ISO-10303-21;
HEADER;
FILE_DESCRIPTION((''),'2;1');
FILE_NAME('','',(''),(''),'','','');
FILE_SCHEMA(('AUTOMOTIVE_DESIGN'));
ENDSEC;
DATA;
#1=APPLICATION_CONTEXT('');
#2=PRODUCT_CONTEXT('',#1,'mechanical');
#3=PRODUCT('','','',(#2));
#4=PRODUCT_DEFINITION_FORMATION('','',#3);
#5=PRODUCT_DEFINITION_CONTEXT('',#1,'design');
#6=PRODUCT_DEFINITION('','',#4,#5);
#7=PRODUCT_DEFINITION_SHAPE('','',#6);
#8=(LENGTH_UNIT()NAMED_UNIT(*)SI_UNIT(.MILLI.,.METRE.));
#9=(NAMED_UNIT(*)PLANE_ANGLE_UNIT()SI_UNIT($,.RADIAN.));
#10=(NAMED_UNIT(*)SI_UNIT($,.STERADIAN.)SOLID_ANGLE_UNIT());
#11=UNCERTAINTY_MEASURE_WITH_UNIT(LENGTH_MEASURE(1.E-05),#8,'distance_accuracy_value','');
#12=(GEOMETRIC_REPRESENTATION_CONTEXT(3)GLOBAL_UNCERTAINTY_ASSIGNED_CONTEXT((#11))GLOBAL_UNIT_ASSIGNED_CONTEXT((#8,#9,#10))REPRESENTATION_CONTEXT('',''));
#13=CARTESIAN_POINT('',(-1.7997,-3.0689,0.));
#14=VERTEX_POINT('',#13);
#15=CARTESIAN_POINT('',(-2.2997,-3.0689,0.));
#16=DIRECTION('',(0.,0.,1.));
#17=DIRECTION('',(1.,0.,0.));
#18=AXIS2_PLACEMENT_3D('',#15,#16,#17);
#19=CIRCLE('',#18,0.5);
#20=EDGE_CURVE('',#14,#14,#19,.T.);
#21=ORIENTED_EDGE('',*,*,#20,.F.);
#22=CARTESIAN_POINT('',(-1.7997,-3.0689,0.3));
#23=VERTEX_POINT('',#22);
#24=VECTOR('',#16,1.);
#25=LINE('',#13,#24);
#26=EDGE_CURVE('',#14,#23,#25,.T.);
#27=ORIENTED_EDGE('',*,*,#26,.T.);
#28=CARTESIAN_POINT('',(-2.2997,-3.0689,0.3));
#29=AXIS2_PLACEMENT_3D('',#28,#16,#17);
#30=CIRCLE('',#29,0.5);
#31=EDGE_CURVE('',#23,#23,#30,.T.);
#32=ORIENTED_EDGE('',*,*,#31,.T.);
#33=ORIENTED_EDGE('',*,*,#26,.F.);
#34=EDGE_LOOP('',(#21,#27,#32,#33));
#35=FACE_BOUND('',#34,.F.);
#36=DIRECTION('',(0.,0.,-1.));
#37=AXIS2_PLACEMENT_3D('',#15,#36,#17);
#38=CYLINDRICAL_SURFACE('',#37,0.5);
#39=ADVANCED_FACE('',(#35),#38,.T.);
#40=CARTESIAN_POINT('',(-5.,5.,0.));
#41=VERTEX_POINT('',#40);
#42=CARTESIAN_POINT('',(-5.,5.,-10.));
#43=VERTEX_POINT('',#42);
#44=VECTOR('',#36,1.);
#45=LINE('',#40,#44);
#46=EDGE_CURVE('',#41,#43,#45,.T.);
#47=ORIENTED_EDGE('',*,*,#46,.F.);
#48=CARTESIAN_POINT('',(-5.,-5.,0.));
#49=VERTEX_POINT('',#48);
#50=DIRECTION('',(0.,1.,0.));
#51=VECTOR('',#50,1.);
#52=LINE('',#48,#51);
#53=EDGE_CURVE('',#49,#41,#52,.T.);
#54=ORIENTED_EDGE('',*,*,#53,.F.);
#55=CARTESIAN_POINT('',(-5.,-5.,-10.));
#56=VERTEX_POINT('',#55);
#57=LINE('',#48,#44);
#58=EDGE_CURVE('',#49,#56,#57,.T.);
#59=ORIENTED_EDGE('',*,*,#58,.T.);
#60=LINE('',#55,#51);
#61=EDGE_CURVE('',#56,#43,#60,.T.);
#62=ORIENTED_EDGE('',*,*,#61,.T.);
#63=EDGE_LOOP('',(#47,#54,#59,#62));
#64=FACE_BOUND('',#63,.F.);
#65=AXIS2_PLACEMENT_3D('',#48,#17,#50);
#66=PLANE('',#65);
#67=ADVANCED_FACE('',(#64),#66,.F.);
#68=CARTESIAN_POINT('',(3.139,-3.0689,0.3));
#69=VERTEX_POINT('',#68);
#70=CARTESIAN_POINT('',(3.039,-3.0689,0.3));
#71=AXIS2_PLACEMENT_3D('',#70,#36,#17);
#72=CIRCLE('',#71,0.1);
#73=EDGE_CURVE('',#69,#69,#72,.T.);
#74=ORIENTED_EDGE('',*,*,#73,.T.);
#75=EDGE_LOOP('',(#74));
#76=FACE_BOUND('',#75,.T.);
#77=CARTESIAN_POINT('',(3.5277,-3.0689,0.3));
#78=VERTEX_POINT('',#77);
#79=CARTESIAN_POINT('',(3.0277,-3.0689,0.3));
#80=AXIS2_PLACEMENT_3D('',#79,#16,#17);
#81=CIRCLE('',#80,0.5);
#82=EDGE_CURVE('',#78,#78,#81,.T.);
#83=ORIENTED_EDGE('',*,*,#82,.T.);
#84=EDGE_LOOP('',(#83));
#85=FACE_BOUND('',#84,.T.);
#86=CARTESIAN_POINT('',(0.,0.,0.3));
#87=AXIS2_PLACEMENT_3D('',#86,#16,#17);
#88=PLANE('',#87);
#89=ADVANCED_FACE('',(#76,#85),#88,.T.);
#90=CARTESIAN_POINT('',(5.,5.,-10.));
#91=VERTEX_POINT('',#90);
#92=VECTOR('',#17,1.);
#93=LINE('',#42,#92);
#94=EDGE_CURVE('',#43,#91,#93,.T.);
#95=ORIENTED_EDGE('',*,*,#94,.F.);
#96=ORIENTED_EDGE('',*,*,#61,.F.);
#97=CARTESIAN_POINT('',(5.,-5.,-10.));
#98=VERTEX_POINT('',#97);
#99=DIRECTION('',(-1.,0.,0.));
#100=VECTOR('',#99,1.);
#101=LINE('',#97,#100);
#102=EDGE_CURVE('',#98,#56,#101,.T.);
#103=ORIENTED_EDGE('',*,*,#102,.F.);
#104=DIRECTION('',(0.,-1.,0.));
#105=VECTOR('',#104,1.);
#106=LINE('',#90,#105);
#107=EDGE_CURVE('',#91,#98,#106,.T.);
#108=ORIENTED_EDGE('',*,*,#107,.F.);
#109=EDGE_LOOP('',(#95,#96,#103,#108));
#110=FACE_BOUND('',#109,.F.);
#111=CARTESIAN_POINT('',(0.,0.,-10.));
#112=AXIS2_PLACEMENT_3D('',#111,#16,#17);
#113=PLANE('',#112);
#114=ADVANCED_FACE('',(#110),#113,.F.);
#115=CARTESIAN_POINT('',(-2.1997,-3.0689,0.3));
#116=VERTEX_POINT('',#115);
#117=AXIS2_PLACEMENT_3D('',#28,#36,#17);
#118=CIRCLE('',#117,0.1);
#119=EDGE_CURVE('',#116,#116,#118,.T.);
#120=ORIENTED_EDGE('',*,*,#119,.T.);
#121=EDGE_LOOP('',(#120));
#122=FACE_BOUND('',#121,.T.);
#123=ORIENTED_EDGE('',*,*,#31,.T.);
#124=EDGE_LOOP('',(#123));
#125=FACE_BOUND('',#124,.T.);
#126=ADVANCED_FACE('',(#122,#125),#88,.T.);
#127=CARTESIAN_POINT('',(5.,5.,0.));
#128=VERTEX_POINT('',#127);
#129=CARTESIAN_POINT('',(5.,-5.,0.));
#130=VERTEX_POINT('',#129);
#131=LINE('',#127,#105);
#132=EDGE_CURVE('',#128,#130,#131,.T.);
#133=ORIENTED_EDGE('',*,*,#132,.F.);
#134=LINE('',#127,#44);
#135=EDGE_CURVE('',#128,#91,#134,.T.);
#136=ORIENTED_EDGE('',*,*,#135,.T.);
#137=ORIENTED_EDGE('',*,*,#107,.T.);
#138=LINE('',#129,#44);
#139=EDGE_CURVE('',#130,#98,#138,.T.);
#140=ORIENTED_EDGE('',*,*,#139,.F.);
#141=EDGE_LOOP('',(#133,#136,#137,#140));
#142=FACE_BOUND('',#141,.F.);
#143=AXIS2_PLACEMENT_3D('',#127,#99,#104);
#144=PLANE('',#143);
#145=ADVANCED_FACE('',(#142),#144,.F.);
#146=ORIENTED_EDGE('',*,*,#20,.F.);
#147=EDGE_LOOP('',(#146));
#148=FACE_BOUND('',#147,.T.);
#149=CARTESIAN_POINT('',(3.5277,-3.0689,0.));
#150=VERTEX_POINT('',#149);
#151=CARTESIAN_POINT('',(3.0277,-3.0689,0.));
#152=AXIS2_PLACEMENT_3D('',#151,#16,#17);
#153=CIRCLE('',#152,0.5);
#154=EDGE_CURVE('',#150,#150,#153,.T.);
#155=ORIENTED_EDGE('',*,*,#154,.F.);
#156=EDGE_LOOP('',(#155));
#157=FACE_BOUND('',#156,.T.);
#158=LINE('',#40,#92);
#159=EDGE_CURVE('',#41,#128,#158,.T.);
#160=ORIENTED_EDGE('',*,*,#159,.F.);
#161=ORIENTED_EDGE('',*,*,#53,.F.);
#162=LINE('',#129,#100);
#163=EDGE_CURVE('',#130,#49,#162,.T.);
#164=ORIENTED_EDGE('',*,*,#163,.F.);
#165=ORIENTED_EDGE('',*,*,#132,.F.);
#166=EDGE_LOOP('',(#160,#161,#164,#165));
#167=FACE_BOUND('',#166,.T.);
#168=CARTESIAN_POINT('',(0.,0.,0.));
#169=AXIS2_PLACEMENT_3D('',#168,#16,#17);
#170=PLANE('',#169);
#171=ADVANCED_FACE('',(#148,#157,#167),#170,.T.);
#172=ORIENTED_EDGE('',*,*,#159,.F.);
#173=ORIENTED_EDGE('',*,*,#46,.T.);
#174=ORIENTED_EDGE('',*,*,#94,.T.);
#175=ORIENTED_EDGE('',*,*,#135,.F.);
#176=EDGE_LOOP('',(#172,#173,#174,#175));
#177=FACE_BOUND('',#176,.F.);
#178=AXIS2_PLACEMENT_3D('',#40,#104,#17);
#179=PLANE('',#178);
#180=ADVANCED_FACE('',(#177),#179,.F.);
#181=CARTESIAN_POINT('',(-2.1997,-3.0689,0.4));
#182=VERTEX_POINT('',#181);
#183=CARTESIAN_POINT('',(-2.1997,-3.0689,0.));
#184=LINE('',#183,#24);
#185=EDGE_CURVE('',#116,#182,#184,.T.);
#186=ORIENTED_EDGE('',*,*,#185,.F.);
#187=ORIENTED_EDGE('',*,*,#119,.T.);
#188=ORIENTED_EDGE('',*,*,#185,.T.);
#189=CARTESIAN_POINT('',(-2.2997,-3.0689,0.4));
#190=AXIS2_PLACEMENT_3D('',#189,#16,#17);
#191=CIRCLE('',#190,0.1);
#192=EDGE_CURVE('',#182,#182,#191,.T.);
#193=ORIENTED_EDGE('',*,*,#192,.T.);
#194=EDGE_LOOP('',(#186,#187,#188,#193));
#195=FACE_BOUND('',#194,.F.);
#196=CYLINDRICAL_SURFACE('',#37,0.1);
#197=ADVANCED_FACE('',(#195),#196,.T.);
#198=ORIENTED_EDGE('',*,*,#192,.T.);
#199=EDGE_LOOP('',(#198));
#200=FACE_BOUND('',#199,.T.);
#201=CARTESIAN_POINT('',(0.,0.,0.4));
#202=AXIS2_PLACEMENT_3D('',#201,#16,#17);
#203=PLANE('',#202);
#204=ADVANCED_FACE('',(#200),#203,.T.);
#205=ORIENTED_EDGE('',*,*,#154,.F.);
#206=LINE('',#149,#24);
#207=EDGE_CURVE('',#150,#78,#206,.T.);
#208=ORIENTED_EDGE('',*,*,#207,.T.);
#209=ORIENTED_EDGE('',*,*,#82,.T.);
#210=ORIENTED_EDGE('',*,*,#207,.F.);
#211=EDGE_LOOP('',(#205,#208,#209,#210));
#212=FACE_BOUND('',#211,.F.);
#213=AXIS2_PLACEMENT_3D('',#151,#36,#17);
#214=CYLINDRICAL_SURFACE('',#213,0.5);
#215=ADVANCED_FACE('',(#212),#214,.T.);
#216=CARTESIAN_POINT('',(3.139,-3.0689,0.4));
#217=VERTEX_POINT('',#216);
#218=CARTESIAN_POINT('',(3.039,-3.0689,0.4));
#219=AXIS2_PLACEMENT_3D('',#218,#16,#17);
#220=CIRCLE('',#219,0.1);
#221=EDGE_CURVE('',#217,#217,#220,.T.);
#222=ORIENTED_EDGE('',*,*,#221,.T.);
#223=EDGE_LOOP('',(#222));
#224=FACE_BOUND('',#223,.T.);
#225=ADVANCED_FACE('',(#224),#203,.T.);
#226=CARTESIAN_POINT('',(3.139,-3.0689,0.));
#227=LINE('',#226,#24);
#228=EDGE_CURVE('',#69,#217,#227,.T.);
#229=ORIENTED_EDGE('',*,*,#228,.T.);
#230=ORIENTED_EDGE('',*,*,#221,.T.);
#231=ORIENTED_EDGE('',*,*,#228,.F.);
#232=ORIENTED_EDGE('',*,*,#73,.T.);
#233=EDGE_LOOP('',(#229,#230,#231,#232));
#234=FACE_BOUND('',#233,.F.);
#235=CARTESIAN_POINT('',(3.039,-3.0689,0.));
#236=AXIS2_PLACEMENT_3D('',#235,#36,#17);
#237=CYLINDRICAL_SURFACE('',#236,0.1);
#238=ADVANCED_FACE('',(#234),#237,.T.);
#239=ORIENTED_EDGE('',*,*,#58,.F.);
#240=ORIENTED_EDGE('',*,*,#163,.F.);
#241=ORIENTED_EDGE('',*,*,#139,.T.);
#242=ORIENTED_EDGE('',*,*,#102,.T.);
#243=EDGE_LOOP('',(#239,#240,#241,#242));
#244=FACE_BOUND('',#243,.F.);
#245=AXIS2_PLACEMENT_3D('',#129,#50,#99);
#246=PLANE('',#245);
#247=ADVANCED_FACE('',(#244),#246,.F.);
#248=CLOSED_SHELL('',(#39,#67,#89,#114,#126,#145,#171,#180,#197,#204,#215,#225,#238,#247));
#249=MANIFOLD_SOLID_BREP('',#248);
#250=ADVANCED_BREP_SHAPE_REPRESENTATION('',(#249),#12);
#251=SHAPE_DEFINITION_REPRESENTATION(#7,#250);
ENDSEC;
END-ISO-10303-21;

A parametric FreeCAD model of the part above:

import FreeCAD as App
import Part
import Sketcher
from FreeCAD import Vector


def add_polygon(sketch, points):
    """Adds a closed chain of lines whose ends are joined by coincident constraints."""
    first, n = sketch.GeometryCount, len(points)
    for a, b in zip(points, points[1:] + points[:1]):
        sketch.addGeometry(Part.LineSegment(App.Vector(*a, 0), App.Vector(*b, 0)), False)
    for i in range(n):
        sketch.addConstraint(Sketcher.Constraint("Coincident", first + i, 2, first + (i + 1) % n, 1))

doc = App.newDocument("Part")
body = doc.addObject("PartDesign::Body", "Body")

# Sketch on XY plane
sketch1 = body.newObject("Sketcher::SketchObject", "Sketch")
sketch1.AttachmentSupport = (doc.getObject("XY_Plane"), [""])
sketch1.MapMode = "FlatFace"
add_polygon(sketch1, [(5, 5), (-5, 5), (-5, -5), (5, -5)])  # lines 0-3
sketch1.addConstraint([
    Sketcher.Constraint("Horizontal", 0),
    Sketcher.Constraint("Vertical", 1),
    Sketcher.Constraint("Horizontal", 2),
    Sketcher.Constraint("Vertical", 3),
    Sketcher.Constraint("Symmetric", 0, 2, 2, 2, -1, 1),
    Sketcher.Constraint("Equal", 2, 1),
    Sketcher.Constraint("DistanceX", 0, 2, 0, 1, 10.0),
])
pad1 = body.newObject("PartDesign::Pad", "Pad")
pad1.Profile = sketch1
pad1.Length = 10
pad1.Reversed = True

# Sketch on XY plane
sketch2 = body.newObject("Sketcher::SketchObject", "Sketch001")
sketch2.AttachmentSupport = (doc.getObject("XY_Plane"), [""])
sketch2.MapMode = "FlatFace"
sketch2.addGeometry([
    Part.Circle(Vector(-2.3, -3.1, 0), Vector(0, 0, 1), 0.5),
    Part.Circle(Vector(3, -3.1, 0), Vector(0, 0, 1), 0.5),
], False)
sketch2.addConstraint([
    Sketcher.Constraint("Equal", 0, 1),
    Sketcher.Constraint("Horizontal", 0, 3, 1, 3),
    Sketcher.Constraint("Diameter", 0, 1.0),
    Sketcher.Constraint("DistanceY", 0, 3, -1, 1, 3.069),
    Sketcher.Constraint("DistanceX", 0, 3, -1, 1, 2.2997),
    Sketcher.Constraint("DistanceX", -1, 1, 1, 3, 3.0277),
])
pad2 = body.newObject("PartDesign::Pad", "Pad001")
pad2.Profile = sketch2
pad2.Length = 0.3

# Sketch on XY plane
sketch3 = body.newObject("Sketcher::SketchObject", "Sketch002")
sketch3.AttachmentSupport = (doc.getObject("XY_Plane"), [""])
sketch3.MapMode = "FlatFace"
sketch3.addGeometry([
    Part.Circle(Vector(-2.3, -3.07, 0), Vector(0, 0, 1), 0.1),
    Part.Circle(Vector(3.04, -3.07, 0), Vector(0, 0, 1), 0.1),
], False)
sketch3.addConstraint([
    Sketcher.Constraint("Equal", 0, 1),
    Sketcher.Constraint("Horizontal", 0, 3, 1, 3),
    Sketcher.Constraint("Diameter", 0, 0.2),
    Sketcher.Constraint("DistanceY", 0, 3, -1, 1, 3.069),
    Sketcher.Constraint("DistanceX", -1, 1, 1, 3, 3.039),
    Sketcher.Constraint("DistanceX", 0, 3, -1, 1, 2.2997),
])
pad3 = body.newObject("PartDesign::Pad", "Pad002")
pad3.Profile = sketch3
pad3.Length = 0.4

doc.recompute()
